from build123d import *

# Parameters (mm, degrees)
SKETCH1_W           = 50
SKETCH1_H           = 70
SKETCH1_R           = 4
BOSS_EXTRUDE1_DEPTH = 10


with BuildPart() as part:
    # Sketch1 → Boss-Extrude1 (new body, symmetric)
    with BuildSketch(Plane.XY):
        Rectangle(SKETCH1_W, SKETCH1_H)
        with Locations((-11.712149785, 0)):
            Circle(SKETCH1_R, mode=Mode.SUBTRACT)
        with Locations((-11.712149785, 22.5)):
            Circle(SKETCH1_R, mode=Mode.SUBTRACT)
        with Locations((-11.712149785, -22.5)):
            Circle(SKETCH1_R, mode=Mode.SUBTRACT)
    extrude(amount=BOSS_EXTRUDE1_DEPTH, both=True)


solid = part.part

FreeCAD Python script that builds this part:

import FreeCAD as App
import Part
import Sketcher
from FreeCAD import Vector


def add_polygon(sketch, points):
    """Adds a closed chain of lines whose ends are joined by coincident constraints."""
    first, n = sketch.GeometryCount, len(points)
    for a, b in zip(points, points[1:] + points[:1]):
        sketch.addGeometry(Part.LineSegment(App.Vector(*a, 0), App.Vector(*b, 0)), False)
    for i in range(n):
        sketch.addConstraint(Sketcher.Constraint("Coincident", first + i, 2, first + (i + 1) % n, 1))

doc = App.newDocument("Part")
body = doc.addObject("PartDesign::Body", "Body")

# Sketch on XY plane
sketch1 = body.newObject("Sketcher::SketchObject", "Sketch")
sketch1.AttachmentSupport = (doc.getObject("XY_Plane"), [""])
sketch1.MapMode = "FlatFace"
add_polygon(sketch1, [(-25, 35), (-25, -35), (25, -35), (25, 35)])  # lines 0-3
sketch1.addGeometry(Part.Circle(Vector(-11.7, -22.5, 0), Vector(0, 0, 1), 4), False)  # 4
sketch1.addGeometry(Part.Circle(Vector(-11.7, 0, 0), Vector(0, 0, 1), 4), False)  # 5
sketch1.addGeometry(Part.Circle(Vector(-11.7, 22.5, 0), Vector(0, 0, 1), 4), False)  # 6
sketch1.addConstraint([
    Sketcher.Constraint("Vertical", 0),
    Sketcher.Constraint("Horizontal", 1),
    Sketcher.Constraint("Vertical", 2),
    Sketcher.Constraint("Horizontal", 3),
    Sketcher.Constraint("Equal", 4, 5),
    Sketcher.Constraint("Equal", 5, 6),
    Sketcher.Constraint("Symmetric", 0, 2, 2, 2, -1, 1),
    Sketcher.Constraint("Symmetric", 4, 3, 6, 3, -1),
    Sketcher.Constraint("PointOnObject", 5, 3, -1),
    Sketcher.Constraint("Vertical", 4, 3, 5, 3),
    Sketcher.Constraint("Diameter", 4, 8.0),
    Sketcher.Constraint("DistanceX", 1, 1, 1, 2, 50.0),
    Sketcher.Constraint("DistanceY", 0, 2, 0, 1, 70.0),
    Sketcher.Constraint("DistanceY", 4, 3, 6, 3, 45.0),
    Sketcher.Constraint("DistanceX", 4, 3, -1, 1, 11.71215),
])
pad1 = body.newObject("PartDesign::Pad", "Pad")
pad1.Profile = sketch1
pad1.Length = 20
pad1.Midplane = True

doc.recompute()
